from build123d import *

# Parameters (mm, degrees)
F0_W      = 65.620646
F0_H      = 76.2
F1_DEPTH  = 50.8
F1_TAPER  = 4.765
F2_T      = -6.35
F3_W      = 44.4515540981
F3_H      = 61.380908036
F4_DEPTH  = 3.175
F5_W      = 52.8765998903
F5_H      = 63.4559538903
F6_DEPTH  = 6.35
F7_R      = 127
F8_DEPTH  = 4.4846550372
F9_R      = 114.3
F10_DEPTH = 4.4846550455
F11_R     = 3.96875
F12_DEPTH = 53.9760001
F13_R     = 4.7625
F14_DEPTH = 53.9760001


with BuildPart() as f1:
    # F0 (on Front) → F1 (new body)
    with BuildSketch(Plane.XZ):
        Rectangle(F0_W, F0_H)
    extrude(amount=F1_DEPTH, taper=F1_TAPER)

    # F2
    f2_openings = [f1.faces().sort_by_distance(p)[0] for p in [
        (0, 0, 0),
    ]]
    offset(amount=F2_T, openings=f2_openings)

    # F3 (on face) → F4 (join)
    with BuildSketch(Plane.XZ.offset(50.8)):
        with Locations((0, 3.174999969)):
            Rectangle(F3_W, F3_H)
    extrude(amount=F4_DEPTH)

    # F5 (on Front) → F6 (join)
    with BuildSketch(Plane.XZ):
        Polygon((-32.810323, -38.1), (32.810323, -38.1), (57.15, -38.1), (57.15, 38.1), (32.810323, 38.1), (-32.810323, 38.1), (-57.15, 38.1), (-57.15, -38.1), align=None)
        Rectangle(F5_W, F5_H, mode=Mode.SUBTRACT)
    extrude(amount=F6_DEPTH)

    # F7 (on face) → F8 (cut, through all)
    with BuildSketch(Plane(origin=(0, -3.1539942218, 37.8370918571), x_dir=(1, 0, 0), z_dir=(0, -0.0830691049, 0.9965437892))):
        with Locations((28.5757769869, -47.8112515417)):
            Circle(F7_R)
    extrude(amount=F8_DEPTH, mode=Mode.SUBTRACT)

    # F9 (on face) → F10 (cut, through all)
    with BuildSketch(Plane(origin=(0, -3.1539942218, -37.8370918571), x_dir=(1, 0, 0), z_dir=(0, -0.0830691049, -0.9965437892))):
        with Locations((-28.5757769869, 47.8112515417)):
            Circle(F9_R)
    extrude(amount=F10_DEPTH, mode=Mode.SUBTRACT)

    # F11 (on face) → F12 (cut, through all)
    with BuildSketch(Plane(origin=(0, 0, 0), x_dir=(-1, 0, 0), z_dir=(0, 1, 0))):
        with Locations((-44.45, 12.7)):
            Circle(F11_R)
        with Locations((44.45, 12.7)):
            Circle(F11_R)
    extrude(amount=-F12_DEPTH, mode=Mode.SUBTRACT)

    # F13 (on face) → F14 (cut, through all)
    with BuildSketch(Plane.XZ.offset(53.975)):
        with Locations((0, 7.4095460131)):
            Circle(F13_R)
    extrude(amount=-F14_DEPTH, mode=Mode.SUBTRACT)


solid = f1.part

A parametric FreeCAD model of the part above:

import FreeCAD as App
import Part
import Sketcher

V = App.Vector
Q = App.Units.Quantity


def faces_at(feature, points):
    """Names of the faces that lie closest to the given points."""
    faces = feature.Shape.Faces
    near = lambda p: min(range(len(faces)), key=lambda i: faces[i].distToShape(Part.Vertex(*p))[0])
    return sorted({f"Face{near(p) + 1}" for p in points})


def add_polygon(sketch, points):
    """Adds a closed chain of lines whose ends are joined by coincident constraints."""
    first, n = sketch.GeometryCount, len(points)
    for a, b in zip(points, points[1:] + points[:1]):
        sketch.addGeometry(Part.LineSegment(App.Vector(*a, 0), App.Vector(*b, 0)), False)
    for i in range(n):
        sketch.addConstraint(Sketcher.Constraint("Coincident", first + i, 2, first + (i + 1) % n, 1))

doc = App.newDocument("Part")
params = doc.addObject("Spreadsheet::Sheet", "Params")
for row, (alias, value) in enumerate([
    ("sketch1_height", "3 in"),
    ("pad1_length", "2 in"),
    ("pad1_taper", "-4.765 deg"),
    ("thickness_wall", "0.25 in"),
    ("pad2_length", "0.125 in"),
    ("sketch3_height", "3 in"),
    ("sketch3_width", "4.5 in"),
    ("pad3_length", "0.25 in"),
    ("sketch4_diameter", "10 in"),
    ("sketch5_diameter", "9 in"),
    ("sketch6_diameter", "0.3125 in"),
    ("sketch7_diameter", "0.375 in"),
], start=1):
    params.set(f"A{row}", alias)
    params.set(f"B{row}", "=" + value)
    params.setAlias(f"B{row}", alias)

body = doc.addObject("PartDesign::Body", "Body")

# Sketch on XZ plane
sketch1 = body.newObject("Sketcher::SketchObject", "Sketch")
sketch1.AttachmentSupport = (doc.getObject("XZ_Plane"), [""])
sketch1.MapMode = "FlatFace"
add_polygon(sketch1, [(-33, 38), (-33, -38), (33, -38), (33, 38)])  # lines 0-3
sketch1.addConstraint([
    Sketcher.Constraint("Vertical", 0),
    Sketcher.Constraint("Horizontal", 1),
    Sketcher.Constraint("Vertical", 2),
    Sketcher.Constraint("Horizontal", 3),
    Sketcher.Constraint("Symmetric", 0, 2, 2, 2, -1, 1),
    Sketcher.Constraint("DistanceY", 0, 2, 0, 1, Q("3 in")),
    Sketcher.Constraint("DistanceX", 1, 1, 1, 2, 65.620646),
])
sketch1.setExpression("Constraints[9]", "Params.sketch1_height")
pad1 = body.newObject("PartDesign::Pad", "Pad")
pad1.Profile = sketch1
pad1.setExpression("Length", "Params.pad1_length")
pad1.setExpression("TaperAngle", "Params.pad1_taper")
doc.recompute()

thickness = body.newObject("PartDesign::Thickness", "Thickness")
thickness.Base = (pad1, faces_at(pad1, [(0, 0, 0)]))
thickness.setExpression("Value", "Params.thickness_wall")
thickness.Reversed = True
thickness.Join = "Arc"

# Sketch on XZ plane
sketch2 = body.newObject("Sketcher::SketchObject", "Sketch001")
sketch2.AttachmentSupport = (doc.getObject("XZ_Plane"), [""])
sketch2.MapMode = "FlatFace"
sketch2.AttachmentOffset = App.Placement(V(0, 0, 2 * 25.4), App.Rotation())
add_polygon(sketch2, [(-22, 34), (-22, -28), (22, -28), (22, 34)])  # lines 0-3
sketch2.addConstraint([
    Sketcher.Constraint("Vertical", 0),
    Sketcher.Constraint("Horizontal", 1),
    Sketcher.Constraint("Vertical", 2),
    Sketcher.Constraint("Horizontal", 3),
    Sketcher.Constraint("DistanceY", 0, 2, 0, 1, 61.380908),
    Sketcher.Constraint("DistanceX", 1, 1, 1, 2, 44.451554),
    Sketcher.Constraint("DistanceX", 0, 2, -1, 1, 22.225777),
    Sketcher.Constraint("DistanceY", 0, 2, -1, 1, 27.515454),
])
pad2 = body.newObject("PartDesign::Pad", "Pad001")
pad2.Profile = sketch2
pad2.setExpression("Length", "Params.pad2_length")

# Sketch on XZ plane
sketch3 = body.newObject("Sketcher::SketchObject", "Sketch002")
sketch3.AttachmentSupport = (doc.getObject("XZ_Plane"), [""])
sketch3.MapMode = "FlatFace"
add_polygon(sketch3, [(57, -38), (57, 38), (-57, 38), (-57, -38)])  # lines 0-3
add_polygon(sketch3, [(26, -32), (-26, -32), (-26, 32), (26, 32)])  # lines 4-7
sketch3.addConstraint([
    Sketcher.Constraint("Vertical", 0),
    Sketcher.Constraint("Horizontal", 1),
    Sketcher.Constraint("Vertical", 2),
    Sketcher.Constraint("Horizontal", 3),
    Sketcher.Constraint("Horizontal", 4),
    Sketcher.Constraint("Vertical", 5),
    Sketcher.Constraint("Horizontal", 6),
    Sketcher.Constraint("Vertical", 7),
    Sketcher.Constraint("Symmetric", 0, 2, 2, 2, -1, 1),
    Sketcher.Constraint("Symmetric", 4, 2, 6, 2, -1, 1),
    Sketcher.Constraint("DistanceY", 0, 1, 0, 2, Q("3 in")),
    Sketcher.Constraint("DistanceX", 1, 2, 1, 1, Q("4.5 in")),
    Sketcher.Constraint("DistanceX", 4, 2, 4, 1, 52.8766),
    Sketcher.Constraint("DistanceY", 5, 1, 5, 2, 63.455954),
])
sketch3.setExpression("Constraints[18]", "Params.sketch3_height")
sketch3.setExpression("Constraints[19]", "Params.sketch3_width")
pad3 = body.newObject("PartDesign::Pad", "Pad002")
pad3.Profile = sketch3
pad3.setExpression("Length", "Params.pad3_length")

# Sketch on an angled plane
sketch4 = body.newObject("Sketcher::SketchObject", "Sketch003")
sketch4.Placement = App.Placement(V(0, -3.153994, 37.837092), App.Rotation(V(1, 0, 0), V(0, 0.996543789, 0.083069105), V(0, -0.083069105, 0.996543789), "ZXY"))
sketch4.addGeometry(Part.Circle(V(29, -48, 0), V(0, 0, 1), 127), False)
sketch4.addConstraint([
    Sketcher.Constraint("Diameter", 0, Q("10 in")),
    Sketcher.Constraint("DistanceY", 0, 3, -1, 1, 47.811252),
    Sketcher.Constraint("DistanceX", -1, 1, 0, 3, 28.575777),
])
sketch4.setExpression("Constraints[0]", "Params.sketch4_diameter")
pocket1 = body.newObject("PartDesign::Pocket", "Pocket")
pocket1.Profile = sketch4
pocket1.Type = "ThroughAll"
pocket1.Reversed = True

# Sketch on an angled plane
sketch5 = body.newObject("Sketcher::SketchObject", "Sketch004")
sketch5.Placement = App.Placement(V(0, -3.153994, -37.837092), App.Rotation(V(1, 0, 0), V(0, -0.996543789, 0.083069105), V(0, -0.083069105, -0.996543789), "ZXY"))
sketch5.addGeometry(Part.Circle(V(-29, 48, 0), V(0, 0, 1), 114), False)
sketch5.addConstraint([
    Sketcher.Constraint("Diameter", 0, Q("9 in")),
    Sketcher.Constraint("DistanceY", -1, 1, 0, 3, 47.811252),
    Sketcher.Constraint("DistanceX", 0, 3, -1, 1, 28.575777),
])
sketch5.setExpression("Constraints[0]", "Params.sketch5_diameter")
pocket2 = body.newObject("PartDesign::Pocket", "Pocket001")
pocket2.Profile = sketch5
pocket2.Type = "ThroughAll"
pocket2.Reversed = True

# Sketch on XZ plane
sketch6 = body.newObject("Sketcher::SketchObject", "Sketch005")
sketch6.AttachmentSupport = (doc.getObject("XZ_Plane"), [""])
sketch6.MapMode = "FlatFace"
sketch6.addGeometry([
    Part.Circle(V(44.5, 12.7, 0), V(0, 0, 1), 4),
    Part.Circle(V(-44.5, 12.7, 0), V(0, 0, 1), 4),
], False)
sketch6.addConstraint([
    Sketcher.Constraint("Equal", 0, 1),
    Sketcher.Constraint("Symmetric", 0, 3, 1, 3, -2),
    Sketcher.Constraint("Diameter", 0, Q("0.3125 in")),
    Sketcher.Constraint("DistanceY", -1, 1, 0, 3, Q("0.5 in")),
    Sketcher.Constraint("DistanceX", 1, 3, 0, 3, Q("3.5 in")),
])
sketch6.setExpression("Constraints[2]", "Params.sketch6_diameter")
pocket3 = body.newObject("PartDesign::Pocket", "Pocket002")
pocket3.Profile = sketch6
pocket3.Type = "ThroughAll"
pocket3.Reversed = True

# Sketch on XZ plane
sketch7 = body.newObject("Sketcher::SketchObject", "Sketch006")
sketch7.AttachmentSupport = (doc.getObject("XZ_Plane"), [""])
sketch7.MapMode = "FlatFace"
sketch7.AttachmentOffset = App.Placement(V(0, 0, 2.125 * 25.4), App.Rotation())
sketch7.addGeometry(Part.Circle(V(0, 7.4, 0), V(0, 0, 1), 4.8), False)
sketch7.addConstraint([
    Sketcher.Constraint("PointOnObject", 0, 3, -2),
    Sketcher.Constraint("Diameter", 0, Q("0.375 in")),
    Sketcher.Constraint("DistanceY", -1, 1, 0, 3, 7.409546),
])
sketch7.setExpression("Constraints[1]", "Params.sketch7_diameter")
pocket4 = body.newObject("PartDesign::Pocket", "Pocket003")
pocket4.Profile = sketch7
pocket4.Type = "ThroughAll"

doc.recompute()
